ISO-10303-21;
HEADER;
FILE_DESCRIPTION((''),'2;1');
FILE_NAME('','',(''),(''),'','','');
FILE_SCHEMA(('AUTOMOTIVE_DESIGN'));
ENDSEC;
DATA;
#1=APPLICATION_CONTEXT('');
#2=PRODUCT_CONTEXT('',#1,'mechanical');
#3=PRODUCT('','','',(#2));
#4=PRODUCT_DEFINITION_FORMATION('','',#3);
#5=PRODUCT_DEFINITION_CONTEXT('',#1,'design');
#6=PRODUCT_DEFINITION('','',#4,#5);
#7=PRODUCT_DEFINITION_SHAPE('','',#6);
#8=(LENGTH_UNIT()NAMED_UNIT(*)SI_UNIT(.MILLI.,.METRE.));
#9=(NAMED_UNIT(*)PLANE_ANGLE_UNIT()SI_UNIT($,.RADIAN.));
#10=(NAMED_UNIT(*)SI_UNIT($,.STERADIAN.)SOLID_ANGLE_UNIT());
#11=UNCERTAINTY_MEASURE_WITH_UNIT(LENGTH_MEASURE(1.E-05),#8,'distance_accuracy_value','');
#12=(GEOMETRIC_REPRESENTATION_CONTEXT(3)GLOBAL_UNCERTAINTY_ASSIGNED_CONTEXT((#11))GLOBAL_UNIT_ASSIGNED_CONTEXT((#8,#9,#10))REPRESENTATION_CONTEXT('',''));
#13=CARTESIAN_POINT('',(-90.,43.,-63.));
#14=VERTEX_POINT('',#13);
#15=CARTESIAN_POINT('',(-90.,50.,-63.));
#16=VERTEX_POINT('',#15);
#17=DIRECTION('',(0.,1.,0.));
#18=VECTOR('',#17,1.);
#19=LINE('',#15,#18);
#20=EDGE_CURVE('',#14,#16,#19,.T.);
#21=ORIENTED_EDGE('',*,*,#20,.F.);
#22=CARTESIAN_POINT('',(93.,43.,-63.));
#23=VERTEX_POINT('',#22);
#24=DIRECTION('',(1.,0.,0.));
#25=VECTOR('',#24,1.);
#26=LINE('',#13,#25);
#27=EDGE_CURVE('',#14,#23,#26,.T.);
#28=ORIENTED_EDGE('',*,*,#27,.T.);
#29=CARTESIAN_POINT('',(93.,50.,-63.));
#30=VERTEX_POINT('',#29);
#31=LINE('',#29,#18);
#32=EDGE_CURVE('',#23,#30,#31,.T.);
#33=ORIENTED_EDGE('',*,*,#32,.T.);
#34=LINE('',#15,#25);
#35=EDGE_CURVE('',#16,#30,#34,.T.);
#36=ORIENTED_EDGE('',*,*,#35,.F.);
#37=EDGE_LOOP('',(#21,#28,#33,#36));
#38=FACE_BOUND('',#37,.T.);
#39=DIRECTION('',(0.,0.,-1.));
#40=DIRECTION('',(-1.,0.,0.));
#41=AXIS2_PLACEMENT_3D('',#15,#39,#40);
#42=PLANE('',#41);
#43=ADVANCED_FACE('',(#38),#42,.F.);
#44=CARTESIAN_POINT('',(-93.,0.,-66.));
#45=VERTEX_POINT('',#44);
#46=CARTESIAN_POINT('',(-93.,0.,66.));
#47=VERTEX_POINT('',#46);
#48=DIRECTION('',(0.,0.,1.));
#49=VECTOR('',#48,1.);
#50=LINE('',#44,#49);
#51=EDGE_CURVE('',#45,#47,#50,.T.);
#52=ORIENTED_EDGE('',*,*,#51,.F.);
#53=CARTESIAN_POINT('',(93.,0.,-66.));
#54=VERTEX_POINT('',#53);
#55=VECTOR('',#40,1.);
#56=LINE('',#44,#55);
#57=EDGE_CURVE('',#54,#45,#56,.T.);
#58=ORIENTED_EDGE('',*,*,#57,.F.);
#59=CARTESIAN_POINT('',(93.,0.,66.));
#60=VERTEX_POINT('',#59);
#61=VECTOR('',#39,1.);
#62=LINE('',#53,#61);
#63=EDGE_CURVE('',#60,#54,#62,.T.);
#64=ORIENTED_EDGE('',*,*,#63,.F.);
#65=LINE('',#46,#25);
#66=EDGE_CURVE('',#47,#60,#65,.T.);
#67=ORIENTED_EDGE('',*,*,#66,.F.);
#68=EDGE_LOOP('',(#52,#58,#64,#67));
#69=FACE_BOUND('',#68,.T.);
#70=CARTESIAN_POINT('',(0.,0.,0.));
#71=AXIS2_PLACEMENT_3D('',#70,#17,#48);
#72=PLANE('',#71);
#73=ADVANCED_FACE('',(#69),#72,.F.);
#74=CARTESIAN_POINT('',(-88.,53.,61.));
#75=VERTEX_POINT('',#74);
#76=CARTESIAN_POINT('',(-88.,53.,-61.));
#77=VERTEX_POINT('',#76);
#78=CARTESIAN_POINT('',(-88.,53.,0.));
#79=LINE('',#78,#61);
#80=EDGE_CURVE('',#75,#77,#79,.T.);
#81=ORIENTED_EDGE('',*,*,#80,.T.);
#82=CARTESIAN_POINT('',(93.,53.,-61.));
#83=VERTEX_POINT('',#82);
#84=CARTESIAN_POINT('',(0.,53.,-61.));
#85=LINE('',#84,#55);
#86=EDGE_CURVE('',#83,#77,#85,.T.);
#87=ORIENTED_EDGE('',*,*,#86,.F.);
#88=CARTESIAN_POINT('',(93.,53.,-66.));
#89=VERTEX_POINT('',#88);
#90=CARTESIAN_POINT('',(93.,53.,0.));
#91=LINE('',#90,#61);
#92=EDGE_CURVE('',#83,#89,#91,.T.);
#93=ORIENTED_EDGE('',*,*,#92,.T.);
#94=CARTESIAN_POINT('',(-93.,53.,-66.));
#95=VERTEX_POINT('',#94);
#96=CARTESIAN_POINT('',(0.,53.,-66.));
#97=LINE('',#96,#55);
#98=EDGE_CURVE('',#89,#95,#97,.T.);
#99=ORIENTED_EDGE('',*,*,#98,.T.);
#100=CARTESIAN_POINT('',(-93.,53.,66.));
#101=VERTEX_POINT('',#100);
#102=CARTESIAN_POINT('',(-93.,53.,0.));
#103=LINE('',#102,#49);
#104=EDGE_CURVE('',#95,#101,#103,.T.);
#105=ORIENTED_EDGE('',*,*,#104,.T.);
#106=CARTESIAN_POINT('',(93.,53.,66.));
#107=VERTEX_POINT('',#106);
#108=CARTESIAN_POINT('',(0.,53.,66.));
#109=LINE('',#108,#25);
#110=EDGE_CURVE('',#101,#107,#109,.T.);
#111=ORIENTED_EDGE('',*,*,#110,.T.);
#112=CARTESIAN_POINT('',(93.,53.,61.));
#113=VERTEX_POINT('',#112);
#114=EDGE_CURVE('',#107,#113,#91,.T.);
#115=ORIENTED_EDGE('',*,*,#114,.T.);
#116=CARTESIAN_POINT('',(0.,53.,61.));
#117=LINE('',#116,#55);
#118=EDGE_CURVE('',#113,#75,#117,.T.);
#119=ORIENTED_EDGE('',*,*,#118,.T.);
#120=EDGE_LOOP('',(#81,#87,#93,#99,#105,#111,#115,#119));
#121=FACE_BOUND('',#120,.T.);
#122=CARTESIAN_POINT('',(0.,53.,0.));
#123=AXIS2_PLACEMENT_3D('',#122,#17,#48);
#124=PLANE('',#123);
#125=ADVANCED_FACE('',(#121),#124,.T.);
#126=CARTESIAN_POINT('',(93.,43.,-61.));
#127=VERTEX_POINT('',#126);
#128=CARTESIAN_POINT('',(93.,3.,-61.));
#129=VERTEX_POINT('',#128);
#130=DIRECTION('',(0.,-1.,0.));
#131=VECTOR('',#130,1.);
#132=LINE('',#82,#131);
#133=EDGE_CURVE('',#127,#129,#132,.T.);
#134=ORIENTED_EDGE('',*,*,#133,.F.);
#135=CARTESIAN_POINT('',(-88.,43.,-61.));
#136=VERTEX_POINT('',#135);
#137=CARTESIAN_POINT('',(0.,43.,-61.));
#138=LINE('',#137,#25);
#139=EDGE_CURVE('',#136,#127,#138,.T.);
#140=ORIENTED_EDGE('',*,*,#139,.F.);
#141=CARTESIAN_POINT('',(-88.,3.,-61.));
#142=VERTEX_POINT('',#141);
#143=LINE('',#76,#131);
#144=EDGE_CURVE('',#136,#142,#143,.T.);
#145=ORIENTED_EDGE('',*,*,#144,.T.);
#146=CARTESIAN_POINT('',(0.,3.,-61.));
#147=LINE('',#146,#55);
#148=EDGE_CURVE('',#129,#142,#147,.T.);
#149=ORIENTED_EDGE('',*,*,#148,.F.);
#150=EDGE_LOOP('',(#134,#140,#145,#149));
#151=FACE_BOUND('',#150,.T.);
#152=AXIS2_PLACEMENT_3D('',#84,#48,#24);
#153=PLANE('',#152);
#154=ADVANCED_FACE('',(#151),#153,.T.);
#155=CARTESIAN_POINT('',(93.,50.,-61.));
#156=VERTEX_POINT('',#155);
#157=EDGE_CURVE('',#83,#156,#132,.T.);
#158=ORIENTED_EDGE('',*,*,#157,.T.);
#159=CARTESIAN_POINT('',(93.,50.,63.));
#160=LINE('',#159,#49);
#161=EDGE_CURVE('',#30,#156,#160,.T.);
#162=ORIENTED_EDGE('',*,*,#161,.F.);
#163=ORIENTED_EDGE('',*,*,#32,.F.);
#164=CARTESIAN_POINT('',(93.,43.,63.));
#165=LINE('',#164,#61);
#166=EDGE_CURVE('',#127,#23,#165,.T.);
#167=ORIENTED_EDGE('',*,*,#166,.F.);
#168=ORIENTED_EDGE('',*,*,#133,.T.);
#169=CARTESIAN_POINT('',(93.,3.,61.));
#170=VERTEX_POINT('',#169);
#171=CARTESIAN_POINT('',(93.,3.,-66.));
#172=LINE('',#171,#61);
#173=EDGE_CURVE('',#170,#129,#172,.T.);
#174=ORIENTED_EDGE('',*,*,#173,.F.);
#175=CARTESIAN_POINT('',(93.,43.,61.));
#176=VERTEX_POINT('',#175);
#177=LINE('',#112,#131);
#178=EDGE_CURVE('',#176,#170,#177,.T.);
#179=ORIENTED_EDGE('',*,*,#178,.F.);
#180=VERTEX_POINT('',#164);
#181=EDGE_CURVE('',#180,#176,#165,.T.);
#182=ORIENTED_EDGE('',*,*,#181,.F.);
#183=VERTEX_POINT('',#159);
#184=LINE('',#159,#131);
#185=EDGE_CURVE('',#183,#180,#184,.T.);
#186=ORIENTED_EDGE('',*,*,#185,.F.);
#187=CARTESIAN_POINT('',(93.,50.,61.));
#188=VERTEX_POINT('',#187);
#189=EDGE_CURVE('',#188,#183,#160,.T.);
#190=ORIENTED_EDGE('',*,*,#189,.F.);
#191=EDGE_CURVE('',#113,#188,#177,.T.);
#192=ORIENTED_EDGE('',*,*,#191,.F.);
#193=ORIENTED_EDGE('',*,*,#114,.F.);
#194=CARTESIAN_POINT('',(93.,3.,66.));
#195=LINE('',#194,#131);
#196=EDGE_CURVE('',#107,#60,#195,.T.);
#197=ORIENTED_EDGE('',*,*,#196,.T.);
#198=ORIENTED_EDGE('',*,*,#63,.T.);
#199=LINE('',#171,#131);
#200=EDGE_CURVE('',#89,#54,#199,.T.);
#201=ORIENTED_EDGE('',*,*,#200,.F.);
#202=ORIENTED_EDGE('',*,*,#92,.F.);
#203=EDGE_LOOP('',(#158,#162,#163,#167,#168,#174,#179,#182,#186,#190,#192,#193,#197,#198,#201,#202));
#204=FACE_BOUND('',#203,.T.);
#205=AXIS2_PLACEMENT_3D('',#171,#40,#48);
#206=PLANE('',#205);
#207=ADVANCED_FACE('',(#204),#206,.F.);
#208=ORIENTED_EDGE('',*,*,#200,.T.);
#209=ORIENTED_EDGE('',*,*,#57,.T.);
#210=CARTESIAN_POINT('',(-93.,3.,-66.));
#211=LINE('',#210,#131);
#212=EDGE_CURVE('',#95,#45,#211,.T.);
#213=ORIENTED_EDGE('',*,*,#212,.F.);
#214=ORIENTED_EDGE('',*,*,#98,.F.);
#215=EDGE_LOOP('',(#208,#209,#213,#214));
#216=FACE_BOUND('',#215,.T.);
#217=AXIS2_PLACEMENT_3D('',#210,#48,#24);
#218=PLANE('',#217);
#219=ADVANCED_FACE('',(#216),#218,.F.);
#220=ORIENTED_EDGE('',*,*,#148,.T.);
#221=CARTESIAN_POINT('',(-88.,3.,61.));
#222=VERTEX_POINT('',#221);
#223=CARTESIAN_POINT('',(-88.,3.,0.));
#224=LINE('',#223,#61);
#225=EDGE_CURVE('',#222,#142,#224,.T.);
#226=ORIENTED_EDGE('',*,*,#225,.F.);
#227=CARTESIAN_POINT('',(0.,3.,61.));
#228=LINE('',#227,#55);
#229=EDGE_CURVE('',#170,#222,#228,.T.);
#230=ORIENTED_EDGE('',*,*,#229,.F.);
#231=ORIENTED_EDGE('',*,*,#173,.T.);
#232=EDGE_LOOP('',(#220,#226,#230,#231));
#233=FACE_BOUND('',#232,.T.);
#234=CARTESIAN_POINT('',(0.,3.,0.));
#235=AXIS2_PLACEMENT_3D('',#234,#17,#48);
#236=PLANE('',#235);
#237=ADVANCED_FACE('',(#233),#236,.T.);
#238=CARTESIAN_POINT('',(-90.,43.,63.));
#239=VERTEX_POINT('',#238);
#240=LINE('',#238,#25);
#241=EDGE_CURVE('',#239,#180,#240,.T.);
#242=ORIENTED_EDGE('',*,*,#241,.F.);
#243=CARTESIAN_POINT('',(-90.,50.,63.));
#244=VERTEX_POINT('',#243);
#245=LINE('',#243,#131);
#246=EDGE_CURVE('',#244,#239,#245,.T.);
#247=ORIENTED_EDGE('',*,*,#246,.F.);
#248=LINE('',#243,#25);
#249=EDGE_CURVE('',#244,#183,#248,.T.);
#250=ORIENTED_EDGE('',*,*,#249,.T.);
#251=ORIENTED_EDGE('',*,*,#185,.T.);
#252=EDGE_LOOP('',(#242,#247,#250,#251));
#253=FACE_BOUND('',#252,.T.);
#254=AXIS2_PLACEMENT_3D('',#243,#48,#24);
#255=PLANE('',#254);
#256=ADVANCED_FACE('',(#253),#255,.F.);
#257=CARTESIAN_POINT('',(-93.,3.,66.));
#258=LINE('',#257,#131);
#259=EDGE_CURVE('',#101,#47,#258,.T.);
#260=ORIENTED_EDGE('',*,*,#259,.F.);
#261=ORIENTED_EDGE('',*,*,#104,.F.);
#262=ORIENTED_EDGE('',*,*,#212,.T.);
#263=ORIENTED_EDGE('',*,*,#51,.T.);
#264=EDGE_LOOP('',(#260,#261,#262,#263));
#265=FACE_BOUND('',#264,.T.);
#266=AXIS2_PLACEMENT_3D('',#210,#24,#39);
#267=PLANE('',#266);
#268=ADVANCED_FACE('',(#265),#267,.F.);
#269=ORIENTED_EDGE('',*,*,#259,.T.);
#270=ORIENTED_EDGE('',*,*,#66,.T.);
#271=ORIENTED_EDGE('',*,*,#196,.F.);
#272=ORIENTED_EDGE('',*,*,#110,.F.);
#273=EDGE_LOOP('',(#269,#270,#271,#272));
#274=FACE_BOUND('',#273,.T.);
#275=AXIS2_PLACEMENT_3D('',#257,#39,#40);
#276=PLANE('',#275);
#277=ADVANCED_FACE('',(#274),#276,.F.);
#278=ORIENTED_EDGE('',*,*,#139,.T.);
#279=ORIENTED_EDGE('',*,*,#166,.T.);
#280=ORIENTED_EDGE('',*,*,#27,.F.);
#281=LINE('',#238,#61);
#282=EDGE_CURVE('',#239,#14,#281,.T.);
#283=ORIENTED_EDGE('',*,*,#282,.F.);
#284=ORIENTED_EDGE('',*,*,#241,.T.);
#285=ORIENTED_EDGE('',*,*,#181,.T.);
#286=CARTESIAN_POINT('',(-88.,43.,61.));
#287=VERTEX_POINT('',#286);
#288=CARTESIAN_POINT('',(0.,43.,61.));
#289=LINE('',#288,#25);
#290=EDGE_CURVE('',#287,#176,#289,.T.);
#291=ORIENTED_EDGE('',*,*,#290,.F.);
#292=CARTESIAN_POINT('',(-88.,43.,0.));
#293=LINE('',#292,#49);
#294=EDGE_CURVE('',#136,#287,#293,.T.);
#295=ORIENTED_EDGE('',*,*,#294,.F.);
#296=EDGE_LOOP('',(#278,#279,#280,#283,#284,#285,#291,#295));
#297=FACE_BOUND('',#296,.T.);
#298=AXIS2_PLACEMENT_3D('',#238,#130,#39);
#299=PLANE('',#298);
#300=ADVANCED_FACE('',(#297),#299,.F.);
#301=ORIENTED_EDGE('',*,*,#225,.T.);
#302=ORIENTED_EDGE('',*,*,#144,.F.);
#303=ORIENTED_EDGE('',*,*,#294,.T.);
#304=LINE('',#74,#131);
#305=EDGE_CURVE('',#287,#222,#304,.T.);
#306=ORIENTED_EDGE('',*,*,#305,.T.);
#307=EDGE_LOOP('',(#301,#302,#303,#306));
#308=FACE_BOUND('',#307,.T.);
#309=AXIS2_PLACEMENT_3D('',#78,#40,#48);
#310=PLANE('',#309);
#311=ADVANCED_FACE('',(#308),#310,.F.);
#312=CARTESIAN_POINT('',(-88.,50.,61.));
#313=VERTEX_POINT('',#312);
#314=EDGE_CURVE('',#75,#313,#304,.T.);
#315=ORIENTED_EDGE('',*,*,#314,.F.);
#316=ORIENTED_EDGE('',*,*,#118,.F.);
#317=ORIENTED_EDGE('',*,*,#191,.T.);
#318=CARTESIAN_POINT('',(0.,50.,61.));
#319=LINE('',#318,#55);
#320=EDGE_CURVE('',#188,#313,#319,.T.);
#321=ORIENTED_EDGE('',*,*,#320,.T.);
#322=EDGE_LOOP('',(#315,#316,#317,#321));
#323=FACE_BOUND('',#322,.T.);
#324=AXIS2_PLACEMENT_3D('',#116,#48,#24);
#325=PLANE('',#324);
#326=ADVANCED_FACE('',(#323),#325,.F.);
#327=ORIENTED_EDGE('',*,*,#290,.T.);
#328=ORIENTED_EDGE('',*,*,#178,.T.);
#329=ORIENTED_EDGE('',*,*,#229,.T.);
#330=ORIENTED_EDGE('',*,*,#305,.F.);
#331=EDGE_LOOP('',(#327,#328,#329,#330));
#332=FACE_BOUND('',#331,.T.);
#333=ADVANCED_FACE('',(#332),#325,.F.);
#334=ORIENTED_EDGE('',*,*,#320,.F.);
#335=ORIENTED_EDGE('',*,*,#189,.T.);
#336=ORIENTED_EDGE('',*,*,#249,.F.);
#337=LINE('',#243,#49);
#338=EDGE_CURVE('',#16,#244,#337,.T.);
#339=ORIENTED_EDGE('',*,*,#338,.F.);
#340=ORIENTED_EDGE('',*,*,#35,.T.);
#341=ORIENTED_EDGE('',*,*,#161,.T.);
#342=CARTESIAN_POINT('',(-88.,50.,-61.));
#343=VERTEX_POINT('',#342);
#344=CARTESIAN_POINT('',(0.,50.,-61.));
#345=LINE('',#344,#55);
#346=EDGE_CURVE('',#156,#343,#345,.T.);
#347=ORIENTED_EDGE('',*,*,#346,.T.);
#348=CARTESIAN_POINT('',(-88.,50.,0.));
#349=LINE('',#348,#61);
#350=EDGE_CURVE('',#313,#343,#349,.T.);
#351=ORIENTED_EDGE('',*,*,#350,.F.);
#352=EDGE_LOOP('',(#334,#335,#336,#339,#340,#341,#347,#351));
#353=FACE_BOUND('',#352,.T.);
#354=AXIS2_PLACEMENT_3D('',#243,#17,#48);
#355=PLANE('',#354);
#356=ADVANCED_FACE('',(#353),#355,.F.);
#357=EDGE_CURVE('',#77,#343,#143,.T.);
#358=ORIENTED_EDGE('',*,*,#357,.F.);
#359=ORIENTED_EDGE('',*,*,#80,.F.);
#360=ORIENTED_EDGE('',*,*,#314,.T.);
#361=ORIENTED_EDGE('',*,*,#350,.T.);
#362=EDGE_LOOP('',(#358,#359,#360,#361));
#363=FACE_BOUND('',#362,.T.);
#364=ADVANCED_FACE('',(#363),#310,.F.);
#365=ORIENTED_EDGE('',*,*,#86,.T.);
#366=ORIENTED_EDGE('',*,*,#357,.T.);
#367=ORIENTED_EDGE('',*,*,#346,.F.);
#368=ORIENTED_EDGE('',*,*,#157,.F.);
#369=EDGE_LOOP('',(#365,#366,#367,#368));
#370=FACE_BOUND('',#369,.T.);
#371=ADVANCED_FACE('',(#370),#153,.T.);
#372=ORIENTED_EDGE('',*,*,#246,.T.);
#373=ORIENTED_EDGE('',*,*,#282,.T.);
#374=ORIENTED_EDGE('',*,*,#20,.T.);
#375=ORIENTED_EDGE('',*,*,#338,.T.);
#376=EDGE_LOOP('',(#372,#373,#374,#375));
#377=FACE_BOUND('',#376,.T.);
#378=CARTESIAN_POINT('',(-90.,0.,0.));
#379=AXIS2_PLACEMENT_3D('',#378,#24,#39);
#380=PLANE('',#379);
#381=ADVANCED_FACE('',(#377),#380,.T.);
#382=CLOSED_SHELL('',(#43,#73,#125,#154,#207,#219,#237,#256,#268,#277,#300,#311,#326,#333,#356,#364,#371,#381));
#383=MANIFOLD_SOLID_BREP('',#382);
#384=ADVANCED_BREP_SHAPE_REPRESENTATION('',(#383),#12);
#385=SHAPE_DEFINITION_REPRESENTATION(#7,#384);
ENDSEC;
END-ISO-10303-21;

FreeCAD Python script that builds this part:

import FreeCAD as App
import Part
import Sketcher

V = App.Vector
Q = App.Units.Quantity

doc = App.newDocument("Part")
params = doc.addObject("Spreadsheet::Sheet", "Params")
for row, (alias, value) in enumerate([
    ("sketch1_width", "186 mm"),
    ("sketch1_height", "132 mm"),
    ("pad1_length", "3 mm"),
    ("sketch2_width", "186 mm"),
    ("sketch2_width2", "181 mm"),
    ("sketch2_height", "5 mm"),
    ("sketch2_height2", "132 mm"),
    ("pad2_length", "50 mm"),
    ("sketch3_width", "7 mm"),
    ("sketch3_height", "126 mm"),
    ("pocket1_length", "183 mm"),
], start=1):
    params.set(f"A{row}", alias)
    params.set(f"B{row}", "=" + value)
    params.setAlias(f"B{row}", alias)

body = doc.addObject("PartDesign::Body", "Body")

sketch1 = doc.addObject("Sketcher::SketchObject", "Sketch")
body.addObject(sketch1)
sketch1.AttachmentSupport = (doc.XZ_Plane, [""])
sketch1.MapMode = "FlatFace"
sketch1.addGeometry([
    Part.LineSegment(V(-93, -66, 0), V(-93, 66, 0)),
    Part.LineSegment(V(-93, 66, 0), V(93, 66, 0)),
    Part.LineSegment(V(93, 66, 0), V(93, -66, 0)),
    Part.LineSegment(V(93, -66, 0), V(-93, -66, 0)),
], False)
sketch1.addConstraint([
    Sketcher.Constraint("Coincident", 0, 2, 1, 1),
    Sketcher.Constraint("Coincident", 1, 2, 2, 1),
    Sketcher.Constraint("Coincident", 2, 2, 3, 1),
    Sketcher.Constraint("Coincident", 3, 2, 0, 1),
    Sketcher.Constraint("Vertical", 0),
    Sketcher.Constraint("Horizontal", 1),
    Sketcher.Constraint("Vertical", 2),
    Sketcher.Constraint("Horizontal", 3),
    Sketcher.Constraint("Symmetric", 0, 2, 2, 2, -1, 1),
    Sketcher.Constraint("DistanceX", 1, 1, 1, 2, Q("186 mm")),
    Sketcher.Constraint("DistanceY", 0, 1, 0, 2, Q("132 mm")),
])
sketch1.setExpression("Constraints[9]", "Params.sketch1_width")
sketch1.setExpression("Constraints[10]", "Params.sketch1_height")
pad1 = doc.addObject("PartDesign::Pad", "Pad")
body.addObject(pad1)
pad1.Profile = sketch1
pad1.setExpression("Length", "Params.pad1_length")
pad1.Reversed = True

sketch2 = doc.addObject("Sketcher::SketchObject", "Sketch001")
body.addObject(sketch2)
sketch2.AttachmentSupport = (doc.XZ_Plane, [""])
sketch2.MapMode = "FlatFace"
sketch2.AttachmentOffset = App.Placement(V(0, 0, -3), App.Rotation())
sketch2.addGeometry([
    Part.LineSegment(V(93, -61, 0), V(93, -66, 0)),
    Part.LineSegment(V(93, -66, 0), V(-93, -66, 0)),
    Part.LineSegment(V(-93, -66, 0), V(-93, 66, 0)),
    Part.LineSegment(V(-93, 66, 0), V(93, 66, 0)),
    Part.LineSegment(V(93, 66, 0), V(93, 61, 0)),
    Part.LineSegment(V(93, 61, 0), V(-88, 61, 0)),
    Part.LineSegment(V(-88, 61, 0), V(-88, -61, 0)),
    Part.LineSegment(V(-88, -61, 0), V(93, -61, 0)),
], False)
sketch2.addConstraint([
    Sketcher.Constraint("Coincident", 0, 2, 1, 1),
    Sketcher.Constraint("Coincident", 1, 2, 2, 1),
    Sketcher.Constraint("Coincident", 2, 2, 3, 1),
    Sketcher.Constraint("Coincident", 3, 2, 4, 1),
    Sketcher.Constraint("Coincident", 4, 2, 5, 1),
    Sketcher.Constraint("Coincident", 5, 2, 6, 1),
    Sketcher.Constraint("Coincident", 6, 2, 7, 1),
    Sketcher.Constraint("Coincident", 7, 2, 0, 1),
    Sketcher.Constraint("Vertical", 0),
    Sketcher.Constraint("Horizontal", 1),
    Sketcher.Constraint("Vertical", 2),
    Sketcher.Constraint("Horizontal", 3),
    Sketcher.Constraint("Vertical", 4),
    Sketcher.Constraint("Horizontal", 5),
    Sketcher.Constraint("Vertical", 6),
    Sketcher.Constraint("Horizontal", 7),
    Sketcher.Constraint("Symmetric", 0, 2, 2, 2, -1, 1),
    Sketcher.Constraint("Symmetric", 4, 2, 7, 2, -1),
    Sketcher.Constraint("DistanceX", 1, 2, 1, 1, Q("186 mm")),
    Sketcher.Constraint("DistanceX", 5, 2, 5, 1, Q("181 mm")),
    Sketcher.Constraint("DistanceY", 0, 2, 0, 1, Q("5 mm")),
    Sketcher.Constraint("DistanceY", 2, 1, 2, 2, Q("132 mm")),
])
sketch2.setExpression("Constraints[18]", "Params.sketch2_width")
sketch2.setExpression("Constraints[19]", "Params.sketch2_width2")
sketch2.setExpression("Constraints[20]", "Params.sketch2_height")
sketch2.setExpression("Constraints[21]", "Params.sketch2_height2")
pad2 = doc.addObject("PartDesign::Pad", "Pad001")
body.addObject(pad2)
pad2.Profile = sketch2
pad2.setExpression("Length", "Params.pad2_length")
pad2.Reversed = True

sketch3 = doc.addObject("Sketcher::SketchObject", "Sketch002")
body.addObject(sketch3)
sketch3.AttachmentSupport = (doc.YZ_Plane, [""])
sketch3.MapMode = "FlatFace"
sketch3.AttachmentOffset = App.Placement(V(0, 0, 93), App.Rotation())
sketch3.addGeometry([
    Part.LineSegment(V(50, 63, 0), V(43, 63, 0)),
    Part.LineSegment(V(43, 63, 0), V(43, -63, 0)),
    Part.LineSegment(V(43, -63, 0), V(50, -63, 0)),
    Part.LineSegment(V(50, -63, 0), V(50, 63, 0)),
], False)
sketch3.addConstraint([
    Sketcher.Constraint("Coincident", 0, 2, 1, 1),
    Sketcher.Constraint("Coincident", 1, 2, 2, 1),
    Sketcher.Constraint("Coincident", 2, 2, 3, 1),
    Sketcher.Constraint("Coincident", 3, 2, 0, 1),
    Sketcher.Constraint("Horizontal", 0),
    Sketcher.Constraint("Vertical", 1),
    Sketcher.Constraint("Horizontal", 2),
    Sketcher.Constraint("Vertical", 3),
    Sketcher.Constraint("DistanceX", 0, 2, 0, 1, Q("7 mm")),
    Sketcher.Constraint("DistanceY", 1, 2, 1, 1, Q("126 mm")),
    Sketcher.Constraint("DistanceX", -1, 1, 0, 2, Q("43 mm")),
    Sketcher.Constraint("DistanceY", -1, 1, 0, 2, Q("63 mm")),
])
sketch3.setExpression("Constraints[8]", "Params.sketch3_width")
sketch3.setExpression("Constraints[9]", "Params.sketch3_height")
pocket1 = doc.addObject("PartDesign::Pocket", "Pocket")
body.addObject(pocket1)
pocket1.Profile = sketch3
pocket1.setExpression("Length", "Params.pocket1_length")

doc.recompute()
